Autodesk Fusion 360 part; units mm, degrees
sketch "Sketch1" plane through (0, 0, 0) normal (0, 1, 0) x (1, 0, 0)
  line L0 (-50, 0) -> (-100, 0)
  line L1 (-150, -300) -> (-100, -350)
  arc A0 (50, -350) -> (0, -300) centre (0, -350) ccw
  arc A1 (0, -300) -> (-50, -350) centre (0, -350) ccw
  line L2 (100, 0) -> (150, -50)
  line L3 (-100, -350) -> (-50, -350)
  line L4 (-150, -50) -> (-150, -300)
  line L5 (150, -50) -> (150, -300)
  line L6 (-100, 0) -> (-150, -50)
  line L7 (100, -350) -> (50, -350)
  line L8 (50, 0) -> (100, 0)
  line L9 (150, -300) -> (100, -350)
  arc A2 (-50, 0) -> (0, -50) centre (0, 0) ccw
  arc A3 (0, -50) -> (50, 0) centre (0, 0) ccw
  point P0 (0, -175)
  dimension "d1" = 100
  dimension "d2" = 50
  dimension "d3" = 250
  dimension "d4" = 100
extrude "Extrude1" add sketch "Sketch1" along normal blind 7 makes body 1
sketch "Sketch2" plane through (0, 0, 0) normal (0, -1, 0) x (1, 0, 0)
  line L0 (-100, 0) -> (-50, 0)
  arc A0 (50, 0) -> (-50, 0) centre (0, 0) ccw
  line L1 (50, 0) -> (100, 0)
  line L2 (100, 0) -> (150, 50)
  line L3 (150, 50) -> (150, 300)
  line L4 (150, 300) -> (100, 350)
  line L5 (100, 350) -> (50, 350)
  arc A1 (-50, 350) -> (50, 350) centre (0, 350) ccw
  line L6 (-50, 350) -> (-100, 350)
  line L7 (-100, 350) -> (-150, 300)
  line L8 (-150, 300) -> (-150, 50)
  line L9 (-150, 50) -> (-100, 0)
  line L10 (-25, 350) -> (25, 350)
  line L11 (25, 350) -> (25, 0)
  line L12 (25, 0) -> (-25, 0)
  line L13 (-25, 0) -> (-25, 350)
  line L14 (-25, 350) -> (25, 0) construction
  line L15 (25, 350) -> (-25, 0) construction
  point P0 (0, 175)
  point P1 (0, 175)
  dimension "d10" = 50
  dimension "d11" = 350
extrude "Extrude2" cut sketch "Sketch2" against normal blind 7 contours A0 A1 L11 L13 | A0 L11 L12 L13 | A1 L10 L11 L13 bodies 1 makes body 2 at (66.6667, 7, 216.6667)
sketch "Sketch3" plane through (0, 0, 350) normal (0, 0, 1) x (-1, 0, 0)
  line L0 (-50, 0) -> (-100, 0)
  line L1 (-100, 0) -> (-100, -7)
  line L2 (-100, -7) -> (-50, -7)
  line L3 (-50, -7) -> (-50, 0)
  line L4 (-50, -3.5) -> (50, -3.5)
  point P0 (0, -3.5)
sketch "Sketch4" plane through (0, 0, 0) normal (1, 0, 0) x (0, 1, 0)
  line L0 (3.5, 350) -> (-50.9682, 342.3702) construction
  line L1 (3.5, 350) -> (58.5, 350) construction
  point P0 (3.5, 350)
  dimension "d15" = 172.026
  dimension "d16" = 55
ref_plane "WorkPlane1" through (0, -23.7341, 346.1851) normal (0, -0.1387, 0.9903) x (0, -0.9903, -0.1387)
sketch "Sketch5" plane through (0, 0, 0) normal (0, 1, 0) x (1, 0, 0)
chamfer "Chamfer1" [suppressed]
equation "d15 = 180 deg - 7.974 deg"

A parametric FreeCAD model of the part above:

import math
import FreeCAD as App
import Part
import Sketcher

doc = App.newDocument("Part")
body = doc.addObject("PartDesign::Body", "Body")
body.AllowCompound = True

sketch1 = doc.addObject("Sketcher::SketchObject", "Sketch")
body.addObject(sketch1)
sketch1.AttachmentSupport = (doc.XZ_Plane, [""])
sketch1.MapMode = "FlatFace"
sketch1.addGeometry(Part.ArcOfCircle(Part.Circle(App.Vector(0, 0, 0), App.Vector(0, 0, 1), 50), math.radians(0), math.radians(180)), False)
sketch1.addGeometry(Part.LineSegment(App.Vector(-50, 0, 0), App.Vector(-100, 0, 0)), False)
sketch1.addGeometry(Part.LineSegment(App.Vector(-100, 0, 0), App.Vector(-150, 50, 0)), False)
sketch1.addGeometry(Part.LineSegment(App.Vector(-150, 50, 0), App.Vector(-150, 300, 0)), False)
sketch1.addGeometry(Part.LineSegment(App.Vector(-150, 300, 0), App.Vector(-100, 350, 0)), False)
sketch1.addGeometry(Part.LineSegment(App.Vector(-100, 350, 0), App.Vector(-50, 350, 0)), False)
sketch1.addGeometry(Part.ArcOfCircle(Part.Circle(App.Vector(0, 350, 0), App.Vector(0, 0, 1), 50), math.radians(180), math.radians(360)), False)
sketch1.addGeometry(Part.LineSegment(App.Vector(50, 350, 0), App.Vector(100, 350, 0)), False)
sketch1.addGeometry(Part.LineSegment(App.Vector(100, 350, 0), App.Vector(150, 300, 0)), False)
sketch1.addGeometry(Part.LineSegment(App.Vector(150, 300, 0), App.Vector(150, 50, 0)), False)
sketch1.addGeometry(Part.LineSegment(App.Vector(150, 50, 0), App.Vector(100, 0, 0)), False)
sketch1.addGeometry(Part.LineSegment(App.Vector(100, 0, 0), App.Vector(50, 0, 0)), False)
sketch1.addConstraint(Sketcher.Constraint("Coincident", 0, 2, 1, 1))
sketch1.addConstraint(Sketcher.Constraint("Coincident", 1, 2, 2, 1))
sketch1.addConstraint(Sketcher.Constraint("Coincident", 2, 2, 3, 1))
sketch1.addConstraint(Sketcher.Constraint("Coincident", 3, 2, 4, 1))
sketch1.addConstraint(Sketcher.Constraint("Coincident", 4, 2, 5, 1))
sketch1.addConstraint(Sketcher.Constraint("Coincident", 5, 2, 6, 1))
sketch1.addConstraint(Sketcher.Constraint("Coincident", 6, 2, 7, 1))
sketch1.addConstraint(Sketcher.Constraint("Coincident", 7, 2, 8, 1))
sketch1.addConstraint(Sketcher.Constraint("Coincident", 8, 2, 9, 1))
sketch1.addConstraint(Sketcher.Constraint("Coincident", 9, 2, 10, 1))
sketch1.addConstraint(Sketcher.Constraint("Coincident", 10, 2, 11, 1))
sketch1.addConstraint(Sketcher.Constraint("Coincident", 11, 2, 0, 1))
sketch1.addConstraint(Sketcher.Constraint("Horizontal", 1))
sketch1.addConstraint(Sketcher.Constraint("Vertical", 3))
sketch1.addConstraint(Sketcher.Constraint("Horizontal", 5))
sketch1.addConstraint(Sketcher.Constraint("Horizontal", 7))
sketch1.addConstraint(Sketcher.Constraint("Vertical", 9))
sketch1.addConstraint(Sketcher.Constraint("Horizontal", 11))
sketch1.addConstraint(Sketcher.Constraint("Coincident", 0, 3, -1, 1))
sketch1.addConstraint(Sketcher.Constraint("Equal", 0, 6))
sketch1.addConstraint(Sketcher.Constraint("Symmetric", 1, 2, 10, 2, -1, 1))
sketch1.addConstraint(Sketcher.Constraint("Symmetric", 5, 2, 6, 2, -2))
sketch1.addConstraint(Sketcher.Constraint("Symmetric", 3, 2, 8, 2, -2))
sketch1.addConstraint(Sketcher.Constraint("PointOnObject", 0, 2, -1))
sketch1.addConstraint(Sketcher.Constraint("Perpendicular", 2, 4))
sketch1.addConstraint(Sketcher.Constraint("Perpendicular", 4, 8))
sketch1.addConstraint(Sketcher.Constraint("Perpendicular", 8, 10))
sketch1.addConstraint(Sketcher.Constraint("Horizontal", 6, 3, 4, 2))
sketch1.addConstraint(Sketcher.Constraint("Horizontal", 2, 2, 9, 2))
sketch1.addConstraint(Sketcher.Constraint("Vertical", 1, 2, 4, 2))
sketch1.addConstraint(Sketcher.Constraint("Radius", 0, 50.0))
sketch1.addConstraint(Sketcher.Constraint("DistanceX", 1, 2, 1, 1, 50.0))
sketch1.addConstraint(Sketcher.Constraint("DistanceY", 3, 1, 3, 2, 250.0))
sketch1.addConstraint(Sketcher.Constraint("DistanceY", -1, 1, 2, 2, 50.0))
pad1 = doc.addObject("PartDesign::Pad", "Pad")
body.addObject(pad1)
pad1.Profile = sketch1
pad1.Length = 7
pad1.Reversed = True

sketch2 = doc.addObject("Sketcher::SketchObject", "Sketch001")
body.addObject(sketch2)
sketch2.AttachmentSupport = (doc.XZ_Plane, [""])
sketch2.MapMode = "FlatFace"
sketch2.addGeometry(Part.LineSegment(App.Vector(-25, 0, 0), App.Vector(25, 0, 0)), False)
sketch2.addGeometry(Part.LineSegment(App.Vector(25, 0, 0), App.Vector(25, 350, 0)), False)
sketch2.addGeometry(Part.LineSegment(App.Vector(25, 350, 0), App.Vector(-25, 350, 0)), False)
sketch2.addGeometry(Part.LineSegment(App.Vector(-25, 350, 0), App.Vector(-25, 0, 0)), False)
sketch2.addConstraint(Sketcher.Constraint("Coincident", 0, 2, 1, 1))
sketch2.addConstraint(Sketcher.Constraint("Coincident", 1, 2, 2, 1))
sketch2.addConstraint(Sketcher.Constraint("Coincident", 2, 2, 3, 1))
sketch2.addConstraint(Sketcher.Constraint("Coincident", 3, 2, 0, 1))
sketch2.addConstraint(Sketcher.Constraint("Horizontal", 0))
sketch2.addConstraint(Sketcher.Constraint("Vertical", 1))
sketch2.addConstraint(Sketcher.Constraint("Horizontal", 2))
sketch2.addConstraint(Sketcher.Constraint("Vertical", 3))
sketch2.addConstraint(Sketcher.Constraint("Symmetric", 0, 2, 3, 2, -1, 1))
sketch2.addConstraint(Sketcher.Constraint("DistanceX", 0, 1, 0, 2, 50.0))
sketch2.addConstraint(Sketcher.Constraint("DistanceY", 1, 1, 1, 2, 350.0))
pocket1 = doc.addObject("PartDesign::Pocket", "Pocket")
body.addObject(pocket1)
pocket1.Profile = sketch2
pocket1.Length = 7

doc.recompute()
